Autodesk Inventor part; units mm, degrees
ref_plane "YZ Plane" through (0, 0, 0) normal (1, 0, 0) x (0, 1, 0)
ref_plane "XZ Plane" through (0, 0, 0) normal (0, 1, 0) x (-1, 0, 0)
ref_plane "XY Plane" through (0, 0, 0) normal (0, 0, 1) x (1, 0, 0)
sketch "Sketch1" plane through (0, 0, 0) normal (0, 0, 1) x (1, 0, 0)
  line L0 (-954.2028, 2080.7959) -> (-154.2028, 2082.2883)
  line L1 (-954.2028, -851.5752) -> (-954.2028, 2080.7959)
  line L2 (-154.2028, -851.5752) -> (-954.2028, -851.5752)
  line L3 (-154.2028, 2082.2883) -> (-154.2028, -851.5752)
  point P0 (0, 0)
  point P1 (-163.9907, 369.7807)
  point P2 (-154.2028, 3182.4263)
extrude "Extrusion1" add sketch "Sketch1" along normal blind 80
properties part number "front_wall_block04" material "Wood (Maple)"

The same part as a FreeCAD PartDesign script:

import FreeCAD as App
import Part
import Sketcher
from FreeCAD import Vector
Q = App.Units.Quantity

doc = App.newDocument("Part")
body = doc.addObject("PartDesign::Body", "Body")

sketch1 = body.newObject("Sketcher::SketchObject", "Sketch")
sketch1.AttachmentSupport = (doc.getObject("XY_Plane"), [""])
sketch1.MapMode = "FlatFace"
sketch1.addGeometry([
    Part.LineSegment(Vector(-154.2028, 2082.2883, 0), Vector(-954.2028, 2080.7959, 0)),
    Part.LineSegment(Vector(-954.2028, 2080.7959, 0), Vector(-954.2028, -851.5752, 0)),
    Part.LineSegment(Vector(-954.2028, -851.5752, 0), Vector(-154.2028, -851.5752, 0)),
    Part.LineSegment(Vector(-154.2028, -851.5752, 0), Vector(-154.2028, 2082.2883, 0)),
], False)
sketch1.addConstraint([
    Sketcher.Constraint("Coincident", 0, 2, 1, 1),
    Sketcher.Constraint("Coincident", 1, 2, 2, 1),
    Sketcher.Constraint("Coincident", 2, 2, 3, 1),
    Sketcher.Constraint("Coincident", 3, 2, 0, 1),
    Sketcher.Constraint("Vertical", 1),
    Sketcher.Constraint("Horizontal", 2),
    Sketcher.Constraint("Vertical", 3),
    Sketcher.Constraint("DistanceX", 2, 1, 2, 2, Q("800 mm")),
    Sketcher.Constraint("DistanceY", 1, 2, 1, 1, Q("2932.371 mm")),
    Sketcher.Constraint("DistanceY", 3, 1, 3, 2, Q("2933.8635 mm")),
    Sketcher.Constraint("DistanceY", -1, 1, 0, 2, Q("2080.796 mm")),
    Sketcher.Constraint("DistanceX", 0, 2, -1, 1, Q("954.2028 mm")),
])
pad1 = body.newObject("PartDesign::Pad", "Pad")
pad1.Profile = sketch1
pad1.Length = 80

doc.recompute()
